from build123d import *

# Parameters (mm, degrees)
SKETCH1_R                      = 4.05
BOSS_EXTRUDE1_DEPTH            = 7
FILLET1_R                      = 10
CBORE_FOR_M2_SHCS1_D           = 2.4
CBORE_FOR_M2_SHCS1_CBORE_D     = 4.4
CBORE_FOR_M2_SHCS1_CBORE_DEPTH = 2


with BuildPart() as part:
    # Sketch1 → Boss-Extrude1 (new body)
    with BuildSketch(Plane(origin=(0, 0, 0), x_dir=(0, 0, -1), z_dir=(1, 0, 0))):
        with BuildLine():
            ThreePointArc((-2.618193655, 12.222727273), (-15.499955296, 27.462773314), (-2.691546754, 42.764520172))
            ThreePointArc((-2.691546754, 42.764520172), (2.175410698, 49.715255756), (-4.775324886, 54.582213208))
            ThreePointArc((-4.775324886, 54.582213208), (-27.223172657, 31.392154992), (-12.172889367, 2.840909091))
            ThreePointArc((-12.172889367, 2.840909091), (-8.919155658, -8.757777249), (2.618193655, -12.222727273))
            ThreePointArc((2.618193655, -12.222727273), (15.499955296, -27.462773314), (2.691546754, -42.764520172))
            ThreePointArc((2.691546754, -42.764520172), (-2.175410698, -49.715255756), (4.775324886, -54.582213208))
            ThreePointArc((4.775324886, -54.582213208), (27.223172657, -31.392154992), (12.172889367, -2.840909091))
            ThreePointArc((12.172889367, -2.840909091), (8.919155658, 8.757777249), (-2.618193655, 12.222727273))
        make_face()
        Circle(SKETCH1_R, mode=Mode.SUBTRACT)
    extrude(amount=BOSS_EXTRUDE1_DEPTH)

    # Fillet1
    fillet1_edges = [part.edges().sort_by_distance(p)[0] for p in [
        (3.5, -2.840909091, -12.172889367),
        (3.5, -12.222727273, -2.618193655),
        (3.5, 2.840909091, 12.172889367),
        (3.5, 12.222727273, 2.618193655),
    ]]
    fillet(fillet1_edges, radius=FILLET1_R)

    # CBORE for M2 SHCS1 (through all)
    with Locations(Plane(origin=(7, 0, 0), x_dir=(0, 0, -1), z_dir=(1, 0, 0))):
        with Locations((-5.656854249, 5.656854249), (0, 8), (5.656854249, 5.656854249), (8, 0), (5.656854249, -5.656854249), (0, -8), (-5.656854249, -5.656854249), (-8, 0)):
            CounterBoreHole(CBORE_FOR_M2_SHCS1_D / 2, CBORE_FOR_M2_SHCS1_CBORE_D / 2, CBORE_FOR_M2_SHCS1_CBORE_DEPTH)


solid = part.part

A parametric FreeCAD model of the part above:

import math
import FreeCAD as App
import Part
import Sketcher
from FreeCAD import Vector
Q = App.Units.Quantity


def edges_at(feature, points):
    """Names of the edges that pass closest to the given points."""
    edges = feature.Shape.Edges
    near = lambda p: min(range(len(edges)), key=lambda i: edges[i].distToShape(Part.Vertex(*p))[0])
    return sorted({f"Edge{near(p) + 1}" for p in points})

doc = App.newDocument("Part")
body = doc.addObject("PartDesign::Body", "Body")

# Sketch on YZ plane
sketch1 = doc.addObject("Sketcher::SketchObject", "Sketch")
body.addObject(sketch1)
sketch1.AttachmentSupport = (doc.YZ_Plane, [""])
sketch1.MapMode = "FlatFace"
sketch1.addGeometry([
    Part.ArcOfCircle(Part.Circle(Vector(27.5, 0, 0), Vector(0, 0, 1), 15.5), math.radians(10), math.radians(170)),  # 0
    Part.ArcOfCircle(Part.Circle(Vector(48.7, 3.7, 0), Vector(0, 0, 1), 6), math.radians(-170), math.radians(10)),  # 1
    Part.ArcOfCircle(Part.Circle(Vector(27.5, 0, 0), Vector(0, 0, 1), 27.5), math.radians(10), math.radians(154)),  # 2
    Part.ArcOfCircle(Part.Circle(Vector(0, 0, 0), Vector(0, 0, 1), 12.5), math.radians(77), math.radians(192)),  # 3
    Part.ArcOfCircle(Part.Circle(Vector(-27.5, 0, 0), Vector(0, 0, 1), 15.5), math.radians(-170), math.radians(-10)),  # 4
    Part.ArcOfCircle(Part.Circle(Vector(-48.7, -3.7, 0), Vector(0, 0, 1), 6), math.radians(10), math.radians(190)),  # 5
    Part.ArcOfCircle(Part.Circle(Vector(-27.5, 0, 0), Vector(0, 0, 1), 27.5), math.radians(-170), math.radians(-26)),  # 6
    Part.ArcOfCircle(Part.Circle(Vector(0, 0, 0), Vector(0, 0, 1), 12.5), math.radians(-103), math.radians(12)),  # 7
    Part.Circle(Vector(0, 0, 0), Vector(0, 0, 1), 4),  # 8
], False)
sketch1.addConstraint([
    Sketcher.Constraint("Tangent", 0, 1, 1, 1),
    Sketcher.Constraint("Tangent", 1, 2, 2, 1),
    Sketcher.Constraint("Coincident", 2, 2, 3, 1),
    Sketcher.Constraint("Coincident", 3, 2, 4, 2),
    Sketcher.Constraint("Tangent", 4, 1, 5, 1),
    Sketcher.Constraint("Tangent", 5, 2, 6, 1),
    Sketcher.Constraint("Coincident", 6, 2, 7, 1),
    Sketcher.Constraint("Coincident", 7, 2, 0, 2),
    Sketcher.Constraint("Coincident", 3, 3, -1, 1),
    Sketcher.Constraint("Coincident", 7, 3, -1, 1),
    Sketcher.Constraint("Coincident", 8, 3, -1, 1),
    Sketcher.Constraint("Coincident", 2, 3, 0, 3),
    Sketcher.Constraint("Coincident", 6, 3, 4, 3),
    Sketcher.Constraint("Equal", 0, 4),
    Sketcher.Constraint("Equal", 1, 5),
    Sketcher.Constraint("Equal", 3, 7),
    Sketcher.Constraint("Symmetric", 0, 3, 4, 3, -1, 1),
    Sketcher.Constraint("PointOnObject", 0, 3, -1),
    Sketcher.Constraint("Radius", 1, Q("6 mm")),
    Sketcher.Constraint("Diameter", 8, Q("8.1 mm")),
    Sketcher.Constraint("Radius", 0, Q("15.5 mm")),
    Sketcher.Constraint("Radius", 3, Q("12.5 mm")),
    Sketcher.Constraint("DistanceX", 4, 3, 0, 3, Q("55 mm")),
    Sketcher.Constraint("DistanceX", -1, 1, 0, 1, Q("42.76452 mm")),
    Sketcher.Constraint("DistanceX", 4, 1, -1, 1, Q("42.76452 mm")),
])
pad1 = doc.addObject("PartDesign::Pad", "Pad")
body.addObject(pad1)
pad1.Profile = sketch1
pad1.Length = 7
doc.recompute()

fillet = doc.addObject("PartDesign::Fillet", "Fillet")
body.addObject(fillet)
fillet.Base = (pad1, edges_at(pad1, [
    (3.5, -2.841, -12.173),
    (3.5, -12.223, -2.618),
    (3.5, 2.841, 12.173),
    (3.5, 12.223, 2.618),
]))
fillet.Radius = 10

# Sketch on YZ plane
sketch2 = doc.addObject("Sketcher::SketchObject", "Sketch001")
body.addObject(sketch2)
sketch2.AttachmentSupport = (doc.YZ_Plane, [""])
sketch2.MapMode = "FlatFace"
sketch2.AttachmentOffset = App.Placement(Vector(0, 0, 7), App.Rotation())
sketch2.addGeometry([
    Part.Circle(Vector(5.7, 5.7, 0), Vector(0, 0, 1), 1.2),  # 0
    Part.Circle(Vector(8, 0, 0), Vector(0, 0, 1), 1.2),  # 1
    Part.Circle(Vector(5.7, -5.7, 0), Vector(0, 0, 1), 1.2),  # 2
    Part.Circle(Vector(0, -8, 0), Vector(0, 0, 1), 1.2),  # 3
    Part.Circle(Vector(-5.7, -5.7, 0), Vector(0, 0, 1), 1.2),  # 4
    Part.Circle(Vector(-8, 0, 0), Vector(0, 0, 1), 1.2),  # 5
    Part.Circle(Vector(-5.7, 5.7, 0), Vector(0, 0, 1), 1.2),  # 6
    Part.Circle(Vector(0, 8, 0), Vector(0, 0, 1), 1.2),  # 7
], False)
sketch2.addConstraint([
    Sketcher.Constraint("Equal", 0, 1),
    Sketcher.Constraint("Equal", 1, 2),
    Sketcher.Constraint("Equal", 2, 3),
    Sketcher.Constraint("Equal", 3, 4),
    Sketcher.Constraint("Equal", 4, 5),
    Sketcher.Constraint("Equal", 5, 6),
    Sketcher.Constraint("Equal", 6, 7),
    Sketcher.Constraint("Symmetric", 0, 3, 4, 3, -1, 1),
    Sketcher.Constraint("Symmetric", 1, 3, 5, 3, -1, 1),
    Sketcher.Constraint("Symmetric", 2, 3, 6, 3, -1, 1),
    Sketcher.Constraint("Symmetric", 3, 3, 7, 3, -1, 1),
    Sketcher.Constraint("Symmetric", 2, 3, 4, 3, -2),
    Sketcher.Constraint("PointOnObject", 1, 3, -1),
    Sketcher.Constraint("PointOnObject", 3, 3, -2),
    Sketcher.Constraint("Diameter", 0, Q("2.4 mm")),
    Sketcher.Constraint("DistanceX", -1, 1, 1, 3, Q("8 mm")),
    Sketcher.Constraint("DistanceY", 3, 3, -1, 1, Q("8 mm")),
    Sketcher.Constraint("DistanceY", 2, 3, 0, 3, Q("11.313708 mm")),
    Sketcher.Constraint("DistanceX", 4, 3, 2, 3, Q("11.313708 mm")),
])
doc.recompute()
hole = doc.addObject("PartDesign::Hole", "Hole")
body.addObject(hole)
hole.Profile = sketch2
hole.ThreadType = "None"
hole.Diameter = 2.4
hole.DepthType = "ThroughAll"
hole.HoleCutType = "Counterbore"
hole.HoleCutDiameter = 4.4
hole.HoleCutDepth = 2

doc.recompute()
